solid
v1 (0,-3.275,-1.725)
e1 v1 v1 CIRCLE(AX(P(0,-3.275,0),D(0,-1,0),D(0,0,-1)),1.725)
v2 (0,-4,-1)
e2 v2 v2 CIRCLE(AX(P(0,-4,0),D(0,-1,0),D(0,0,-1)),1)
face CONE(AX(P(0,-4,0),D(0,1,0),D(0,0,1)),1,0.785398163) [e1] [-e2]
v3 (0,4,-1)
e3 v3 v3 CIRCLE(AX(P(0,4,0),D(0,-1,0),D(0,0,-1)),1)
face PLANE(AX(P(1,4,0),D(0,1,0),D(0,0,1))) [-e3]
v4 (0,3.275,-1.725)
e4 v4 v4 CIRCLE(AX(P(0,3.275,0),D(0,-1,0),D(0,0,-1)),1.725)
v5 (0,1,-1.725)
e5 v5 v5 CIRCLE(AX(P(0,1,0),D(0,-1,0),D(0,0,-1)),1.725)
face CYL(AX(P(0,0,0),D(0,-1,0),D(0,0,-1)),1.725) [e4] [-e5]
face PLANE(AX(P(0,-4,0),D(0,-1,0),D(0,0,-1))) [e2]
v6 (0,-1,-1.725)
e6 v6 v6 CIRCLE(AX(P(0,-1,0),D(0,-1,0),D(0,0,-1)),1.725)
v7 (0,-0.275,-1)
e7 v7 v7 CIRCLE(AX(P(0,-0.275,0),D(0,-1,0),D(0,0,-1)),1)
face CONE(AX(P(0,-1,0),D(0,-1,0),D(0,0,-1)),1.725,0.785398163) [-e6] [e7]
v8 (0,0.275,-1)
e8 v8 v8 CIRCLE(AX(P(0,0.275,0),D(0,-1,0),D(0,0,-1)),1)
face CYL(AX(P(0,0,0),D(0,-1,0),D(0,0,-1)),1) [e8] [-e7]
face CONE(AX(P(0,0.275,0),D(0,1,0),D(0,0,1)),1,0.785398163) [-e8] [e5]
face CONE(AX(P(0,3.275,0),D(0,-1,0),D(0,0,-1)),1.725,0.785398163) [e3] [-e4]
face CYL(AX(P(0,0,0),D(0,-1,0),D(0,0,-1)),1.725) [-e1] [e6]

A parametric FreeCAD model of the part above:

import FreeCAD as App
import Part
import Sketcher
Q = App.Units.Quantity


def add_polygon(sketch, points):
    """Adds a closed chain of lines whose ends are joined by coincident constraints."""
    first, n = sketch.GeometryCount, len(points)
    for a, b in zip(points, points[1:] + points[:1]):
        sketch.addGeometry(Part.LineSegment(App.Vector(*a, 0), App.Vector(*b, 0)), False)
    for i in range(n):
        sketch.addConstraint(Sketcher.Constraint("Coincident", first + i, 2, first + (i + 1) % n, 1))

doc = App.newDocument("Part")
body = doc.addObject("PartDesign::Body", "Body")

sketch1 = doc.addObject("Sketcher::SketchObject", "Sketch")
body.addObject(sketch1)
sketch1.AttachmentSupport = (doc.XY_Plane, [""])
sketch1.MapMode = "FlatFace"
add_polygon(sketch1, [(1.725, 3.275), (1, 4), (0, 4), (0, -4), (1, -4), (1.725, -3.275), (1.725, -1), (1, -0.275), (1, 0.275), (1.725, 1)])
sketch1.addConstraint(Sketcher.Constraint("Horizontal", 1))
sketch1.addConstraint(Sketcher.Constraint("Vertical", 2))
sketch1.addConstraint(Sketcher.Constraint("Horizontal", 3))
sketch1.addConstraint(Sketcher.Constraint("Vertical", 5))
sketch1.addConstraint(Sketcher.Constraint("Vertical", 7))
sketch1.addConstraint(Sketcher.Constraint("Vertical", 9))
sketch1.addConstraint(Sketcher.Constraint("Symmetric", 1, 2, 2, 2, -1, 1))
sketch1.addConstraint(Sketcher.Constraint("Symmetric", 5, 2, 8, 2, -1))
sketch1.addConstraint(Sketcher.Constraint("Perpendicular", 0, 4))
sketch1.addConstraint(Sketcher.Constraint("Perpendicular", 4, 6))
sketch1.addConstraint(Sketcher.Constraint("Perpendicular", 6, 8))
sketch1.addConstraint(Sketcher.Constraint("Vertical", 0, 2, 3, 2))
sketch1.addConstraint(Sketcher.Constraint("Vertical", 3, 2, 6, 2))
sketch1.addConstraint(Sketcher.Constraint("Equal", 5, 9))
sketch1.addConstraint(Sketcher.Constraint("DistanceX", 1, 2, 1, 1, Q("1 mm")))
sketch1.addConstraint(Sketcher.Constraint("DistanceY", 2, 2, 2, 1, Q("8 mm")))
sketch1.addConstraint(Sketcher.Constraint("DistanceY", 5, 2, -1, 1, Q("1 mm")))
sketch1.addConstraint(Sketcher.Constraint("DistanceY", 7, 1, 7, 2, Q("0.55 mm")))
revolution = doc.addObject("PartDesign::Revolution", "Revolution")
body.addObject(revolution)
revolution.Profile = sketch1
revolution.ReferenceAxis = (sketch1, ["V_Axis"])
revolution.Angle = 360

doc.recompute()
